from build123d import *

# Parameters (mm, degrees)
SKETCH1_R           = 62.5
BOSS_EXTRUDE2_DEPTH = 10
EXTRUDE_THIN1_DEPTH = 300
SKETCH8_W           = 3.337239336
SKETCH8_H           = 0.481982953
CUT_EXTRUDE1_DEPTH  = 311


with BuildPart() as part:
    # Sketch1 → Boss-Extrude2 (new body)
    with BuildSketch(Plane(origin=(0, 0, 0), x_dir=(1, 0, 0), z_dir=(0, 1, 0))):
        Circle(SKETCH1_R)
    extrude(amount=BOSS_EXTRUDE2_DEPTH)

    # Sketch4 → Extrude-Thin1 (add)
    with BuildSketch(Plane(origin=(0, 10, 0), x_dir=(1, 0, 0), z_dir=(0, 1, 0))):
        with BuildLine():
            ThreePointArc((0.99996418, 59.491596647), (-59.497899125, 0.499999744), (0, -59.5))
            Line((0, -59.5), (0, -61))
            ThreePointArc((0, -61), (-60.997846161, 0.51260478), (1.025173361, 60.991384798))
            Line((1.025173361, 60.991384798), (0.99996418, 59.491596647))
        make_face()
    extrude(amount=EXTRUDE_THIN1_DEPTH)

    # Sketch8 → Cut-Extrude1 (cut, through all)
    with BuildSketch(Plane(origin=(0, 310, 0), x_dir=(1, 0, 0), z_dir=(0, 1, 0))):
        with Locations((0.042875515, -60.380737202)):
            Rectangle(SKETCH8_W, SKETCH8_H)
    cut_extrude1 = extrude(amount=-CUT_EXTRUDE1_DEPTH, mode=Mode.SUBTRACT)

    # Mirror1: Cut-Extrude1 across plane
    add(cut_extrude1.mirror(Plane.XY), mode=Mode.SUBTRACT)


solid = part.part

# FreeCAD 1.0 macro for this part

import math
import FreeCAD as App
import Part
import Sketcher

V = App.Vector

doc = App.newDocument("Part")
params = doc.addObject("Spreadsheet::Sheet", "Params")
for row, (alias, value) in enumerate([
    ("sketch1_diameter", "125 mm"),
    ("pad1_length", "10 mm"),
    ("sketch2_radius", "61 mm"),
    ("sketch2_radius2", "59.5 mm"),
    ("pad2_length", "300 mm"),
], start=1):
    params.set(f"A{row}", alias)
    params.set(f"B{row}", "=" + value)
    params.setAlias(f"B{row}", alias)

body = doc.addObject("PartDesign::Body", "Body")

sketch1 = doc.addObject("Sketcher::SketchObject", "Sketch")
body.addObject(sketch1)
sketch1.AttachmentSupport = (doc.XZ_Plane, [""])
sketch1.MapMode = "FlatFace"
sketch1.addGeometry(Part.Circle(V(0, 0, 0), V(0, 0, 1), 62), False)
sketch1.addConstraint([
    Sketcher.Constraint("Coincident", 0, 3, -1, 1),
    Sketcher.Constraint("Diameter", 0, 125.0),
])
sketch1.setExpression("Constraints[1]", "Params.sketch1_diameter")
pad1 = doc.addObject("PartDesign::Pad", "Pad")
body.addObject(pad1)
pad1.Profile = sketch1
pad1.setExpression("Length", "Params.pad1_length")
pad1.Reversed = True

sketch2 = doc.addObject("Sketcher::SketchObject", "Sketch001")
body.addObject(sketch2)
sketch2.AttachmentSupport = (doc.XZ_Plane, [""])
sketch2.MapMode = "FlatFace"
sketch2.AttachmentOffset = App.Placement(V(0, 0, -10), App.Rotation())
sketch2.addGeometry([
    Part.ArcOfCircle(Part.Circle(V(0, 0, 0), V(0, 0, 1), 59.5), math.radians(90), math.radians(271)),
    Part.LineSegment(V(1, -59.5, 0), V(1, -61, 0)),
    Part.ArcOfCircle(Part.Circle(V(0, 0, 0), V(0, 0, 1), 61), math.radians(90), math.radians(271)),
    Part.LineSegment(V(0, 61, 0), V(0, 59.5, 0)),
], False)
sketch2.addConstraint([
    Sketcher.Constraint("Coincident", 0, 2, 1, 1),
    Sketcher.Constraint("Coincident", 1, 2, 2, 2),
    Sketcher.Constraint("Coincident", 2, 1, 3, 1),
    Sketcher.Constraint("Coincident", 3, 2, 0, 1),
    Sketcher.Constraint("Vertical", 3),
    Sketcher.Constraint("Coincident", 0, 3, -1, 1),
    Sketcher.Constraint("Coincident", 2, 3, -1, 1),
    Sketcher.Constraint("PointOnObject", 2, 1, -2),
    Sketcher.Constraint("Radius", 2, 61.0),
    Sketcher.Constraint("Radius", 0, 59.5),
    Sketcher.Constraint("DistanceX", 0, 2, 1, 2, 0.025209),
    Sketcher.Constraint("DistanceX", -1, 1, 0, 2, 0.999964),
])
sketch2.setExpression("Constraints[8]", "Params.sketch2_radius")
sketch2.setExpression("Constraints[9]", "Params.sketch2_radius2")
pad2 = doc.addObject("PartDesign::Pad", "Pad001")
body.addObject(pad2)
pad2.Profile = sketch2
pad2.setExpression("Length", "Params.pad2_length")
pad2.Reversed = True

sketch3 = doc.addObject("Sketcher::SketchObject", "Sketch002")
body.addObject(sketch3)
sketch3.AttachmentSupport = (doc.XZ_Plane, [""])
sketch3.MapMode = "FlatFace"
sketch3.AttachmentOffset = App.Placement(V(0, 0, -310), App.Rotation())
sketch3.addGeometry([
    Part.LineSegment(V(-1.63, 60.14, 0), V(-1.63, 60.62, 0)),
    Part.LineSegment(V(-1.63, 60.62, 0), V(1.71, 60.62, 0)),
    Part.LineSegment(V(1.71, 60.62, 0), V(1.71, 60.14, 0)),
    Part.LineSegment(V(1.71, 60.14, 0), V(-1.63, 60.14, 0)),
], False)
sketch3.addConstraint([
    Sketcher.Constraint("Coincident", 0, 2, 1, 1),
    Sketcher.Constraint("Coincident", 1, 2, 2, 1),
    Sketcher.Constraint("Coincident", 2, 2, 3, 1),
    Sketcher.Constraint("Coincident", 3, 2, 0, 1),
    Sketcher.Constraint("Vertical", 0),
    Sketcher.Constraint("Horizontal", 1),
    Sketcher.Constraint("Vertical", 2),
    Sketcher.Constraint("Horizontal", 3),
    Sketcher.Constraint("DistanceX", 1, 1, 1, 2, 3.337239),
    Sketcher.Constraint("DistanceY", 0, 1, 0, 2, 0.481983),
    Sketcher.Constraint("DistanceY", -1, 1, 0, 2, 60.621729),
    Sketcher.Constraint("DistanceX", 0, 2, -1, 1, 1.625744),
])
pocket1 = doc.addObject("PartDesign::Pocket", "Pocket")
body.addObject(pocket1)
pocket1.Profile = sketch3
pocket1.Type = "ThroughAll"
pocket1.Reversed = True
doc.recompute()

mirrored = doc.addObject("PartDesign::Mirrored", "Mirrored")
body.addObject(mirrored)
mirrored.Originals = [pocket1]
mirrored.MirrorPlane = (doc.XY_Plane, [""])
body.Tip = mirrored

doc.recompute()
